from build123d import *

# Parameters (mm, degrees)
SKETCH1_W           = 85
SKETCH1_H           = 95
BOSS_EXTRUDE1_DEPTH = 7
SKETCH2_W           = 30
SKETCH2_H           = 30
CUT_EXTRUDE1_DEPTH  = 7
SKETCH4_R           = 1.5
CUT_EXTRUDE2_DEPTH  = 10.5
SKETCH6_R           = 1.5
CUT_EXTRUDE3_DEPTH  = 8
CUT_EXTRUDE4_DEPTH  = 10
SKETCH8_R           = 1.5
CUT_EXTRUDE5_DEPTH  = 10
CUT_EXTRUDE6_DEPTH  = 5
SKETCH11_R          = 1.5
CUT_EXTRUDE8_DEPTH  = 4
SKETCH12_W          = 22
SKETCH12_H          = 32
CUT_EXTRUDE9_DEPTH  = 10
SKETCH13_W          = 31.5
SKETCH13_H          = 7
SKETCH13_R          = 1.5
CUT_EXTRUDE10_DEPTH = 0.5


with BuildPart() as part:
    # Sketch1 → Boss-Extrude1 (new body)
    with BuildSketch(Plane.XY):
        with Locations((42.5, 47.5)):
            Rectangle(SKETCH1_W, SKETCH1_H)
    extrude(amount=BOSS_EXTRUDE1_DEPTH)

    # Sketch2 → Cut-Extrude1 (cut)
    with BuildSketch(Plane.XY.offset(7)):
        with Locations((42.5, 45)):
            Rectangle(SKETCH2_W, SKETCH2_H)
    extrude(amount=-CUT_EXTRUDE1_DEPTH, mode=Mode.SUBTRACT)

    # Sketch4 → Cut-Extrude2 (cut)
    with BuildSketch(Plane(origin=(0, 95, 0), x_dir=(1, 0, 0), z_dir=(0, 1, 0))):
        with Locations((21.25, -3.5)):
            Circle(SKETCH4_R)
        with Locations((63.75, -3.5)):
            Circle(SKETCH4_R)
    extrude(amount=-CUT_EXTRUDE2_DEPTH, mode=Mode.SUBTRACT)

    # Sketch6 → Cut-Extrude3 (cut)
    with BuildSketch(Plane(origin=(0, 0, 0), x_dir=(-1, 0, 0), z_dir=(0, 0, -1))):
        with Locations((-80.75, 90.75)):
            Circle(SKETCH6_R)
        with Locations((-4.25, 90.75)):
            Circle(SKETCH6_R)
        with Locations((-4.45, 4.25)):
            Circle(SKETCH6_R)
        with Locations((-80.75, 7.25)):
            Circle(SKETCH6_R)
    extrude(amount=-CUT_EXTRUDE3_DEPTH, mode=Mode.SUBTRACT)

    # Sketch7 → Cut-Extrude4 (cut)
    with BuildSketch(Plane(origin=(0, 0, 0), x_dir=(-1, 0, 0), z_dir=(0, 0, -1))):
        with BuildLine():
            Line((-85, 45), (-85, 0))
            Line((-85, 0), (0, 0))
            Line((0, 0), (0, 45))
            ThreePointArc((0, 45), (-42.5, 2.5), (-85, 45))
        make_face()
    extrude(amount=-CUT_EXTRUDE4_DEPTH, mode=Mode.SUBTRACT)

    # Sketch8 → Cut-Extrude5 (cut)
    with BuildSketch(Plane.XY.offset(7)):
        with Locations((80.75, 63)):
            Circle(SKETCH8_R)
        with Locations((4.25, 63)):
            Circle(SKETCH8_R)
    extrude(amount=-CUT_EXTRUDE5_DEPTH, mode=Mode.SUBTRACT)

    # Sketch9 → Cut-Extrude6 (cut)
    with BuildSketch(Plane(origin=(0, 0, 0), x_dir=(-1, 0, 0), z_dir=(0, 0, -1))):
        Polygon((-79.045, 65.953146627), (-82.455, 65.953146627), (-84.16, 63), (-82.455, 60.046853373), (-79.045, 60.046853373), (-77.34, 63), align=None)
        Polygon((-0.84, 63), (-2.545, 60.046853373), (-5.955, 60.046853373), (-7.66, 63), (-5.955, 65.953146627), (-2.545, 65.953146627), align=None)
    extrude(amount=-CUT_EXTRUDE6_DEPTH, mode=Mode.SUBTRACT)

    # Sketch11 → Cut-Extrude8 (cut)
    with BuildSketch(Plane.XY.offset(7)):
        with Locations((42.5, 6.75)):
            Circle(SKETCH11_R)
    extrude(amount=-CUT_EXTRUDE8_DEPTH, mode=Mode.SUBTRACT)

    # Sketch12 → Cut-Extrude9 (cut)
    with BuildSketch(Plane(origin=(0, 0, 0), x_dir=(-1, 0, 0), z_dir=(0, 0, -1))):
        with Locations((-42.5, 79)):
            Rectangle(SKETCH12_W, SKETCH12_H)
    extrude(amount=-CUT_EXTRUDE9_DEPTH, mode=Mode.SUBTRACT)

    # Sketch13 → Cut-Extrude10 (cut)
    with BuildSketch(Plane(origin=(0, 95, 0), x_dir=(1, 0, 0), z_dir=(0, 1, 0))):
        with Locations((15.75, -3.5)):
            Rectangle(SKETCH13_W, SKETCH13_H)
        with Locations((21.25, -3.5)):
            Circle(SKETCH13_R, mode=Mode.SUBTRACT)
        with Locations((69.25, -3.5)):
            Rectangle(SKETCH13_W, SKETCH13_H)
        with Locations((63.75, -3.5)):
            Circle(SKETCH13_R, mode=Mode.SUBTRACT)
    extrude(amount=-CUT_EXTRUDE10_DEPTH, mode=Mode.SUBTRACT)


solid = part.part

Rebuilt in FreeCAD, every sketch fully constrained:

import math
import FreeCAD as App
import Part
import Sketcher
Q = App.Units.Quantity

doc = App.newDocument("Part")
body = doc.addObject("PartDesign::Body", "Body")

# Sketch on XY plane
sketch1 = doc.addObject("Sketcher::SketchObject", "Sketch")
body.addObject(sketch1)
sketch1.AttachmentSupport = (doc.XY_Plane, [""])
sketch1.MapMode = "FlatFace"
sketch1.addGeometry(Part.LineSegment(App.Vector(0, 95, 0), App.Vector(0, 0, 0)), False)
sketch1.addGeometry(Part.LineSegment(App.Vector(0, 0, 0), App.Vector(85, 0, 0)), False)
sketch1.addGeometry(Part.LineSegment(App.Vector(85, 0, 0), App.Vector(85, 95, 0)), False)
sketch1.addGeometry(Part.LineSegment(App.Vector(85, 95, 0), App.Vector(0, 95, 0)), False)
sketch1.addConstraint(Sketcher.Constraint("Coincident", 0, 2, 1, 1))
sketch1.addConstraint(Sketcher.Constraint("Coincident", 1, 2, 2, 1))
sketch1.addConstraint(Sketcher.Constraint("Coincident", 2, 2, 3, 1))
sketch1.addConstraint(Sketcher.Constraint("Coincident", 3, 2, 0, 1))
sketch1.addConstraint(Sketcher.Constraint("Vertical", 0))
sketch1.addConstraint(Sketcher.Constraint("Horizontal", 1))
sketch1.addConstraint(Sketcher.Constraint("Vertical", 2))
sketch1.addConstraint(Sketcher.Constraint("Horizontal", 3))
sketch1.addConstraint(Sketcher.Constraint("Coincident", 0, 2, -1, 1))
sketch1.addConstraint(Sketcher.Constraint("DistanceX", 1, 1, 1, 2, Q("85 mm")))
sketch1.addConstraint(Sketcher.Constraint("DistanceY", 0, 2, 0, 1, Q("95 mm")))
pad1 = doc.addObject("PartDesign::Pad", "Pad")
body.addObject(pad1)
pad1.Profile = sketch1
pad1.Length = 7

# Sketch on XY plane
sketch2 = doc.addObject("Sketcher::SketchObject", "Sketch001")
body.addObject(sketch2)
sketch2.AttachmentSupport = (doc.XY_Plane, [""])
sketch2.MapMode = "FlatFace"
sketch2.AttachmentOffset = App.Placement(App.Vector(0, 0, 7), App.Rotation())
sketch2.addGeometry(Part.LineSegment(App.Vector(28, 60, 0), App.Vector(28, 30, 0)), False)
sketch2.addGeometry(Part.LineSegment(App.Vector(28, 30, 0), App.Vector(58, 30, 0)), False)
sketch2.addGeometry(Part.LineSegment(App.Vector(58, 30, 0), App.Vector(58, 60, 0)), False)
sketch2.addGeometry(Part.LineSegment(App.Vector(58, 60, 0), App.Vector(28, 60, 0)), False)
sketch2.addConstraint(Sketcher.Constraint("Coincident", 0, 2, 1, 1))
sketch2.addConstraint(Sketcher.Constraint("Coincident", 1, 2, 2, 1))
sketch2.addConstraint(Sketcher.Constraint("Coincident", 2, 2, 3, 1))
sketch2.addConstraint(Sketcher.Constraint("Coincident", 3, 2, 0, 1))
sketch2.addConstraint(Sketcher.Constraint("Vertical", 0))
sketch2.addConstraint(Sketcher.Constraint("Horizontal", 1))
sketch2.addConstraint(Sketcher.Constraint("Vertical", 2))
sketch2.addConstraint(Sketcher.Constraint("Horizontal", 3))
sketch2.addConstraint(Sketcher.Constraint("Equal", 3, 0))
sketch2.addConstraint(Sketcher.Constraint("DistanceX", 1, 1, 1, 2, Q("30 mm")))
sketch2.addConstraint(Sketcher.Constraint("DistanceY", -1, 1, 0, 2, Q("30 mm")))
sketch2.addConstraint(Sketcher.Constraint("DistanceX", -1, 1, 0, 2, Q("27.5 mm")))
pocket1 = doc.addObject("PartDesign::Pocket", "Pocket")
body.addObject(pocket1)
pocket1.Profile = sketch2
pocket1.Length = 7

# Sketch on XZ plane
sketch3 = doc.addObject("Sketcher::SketchObject", "Sketch002")
body.addObject(sketch3)
sketch3.AttachmentSupport = (doc.XZ_Plane, [""])
sketch3.MapMode = "FlatFace"
sketch3.AttachmentOffset = App.Placement(App.Vector(0, 0, -95), App.Rotation())
sketch3.addGeometry(Part.Circle(App.Vector(21.2, 3.5, 0), App.Vector(0, 0, 1), 1.5), False)
sketch3.addGeometry(Part.Circle(App.Vector(63.8, 3.5, 0), App.Vector(0, 0, 1), 1.5), False)
sketch3.addConstraint(Sketcher.Constraint("Equal", 0, 1))
sketch3.addConstraint(Sketcher.Constraint("Horizontal", 0, 3, 1, 3))
sketch3.addConstraint(Sketcher.Constraint("Diameter", 0, Q("3 mm")))
sketch3.addConstraint(Sketcher.Constraint("DistanceY", -1, 1, 0, 3, Q("3.5 mm")))
sketch3.addConstraint(Sketcher.Constraint("DistanceX", 0, 3, 1, 3, Q("42.5 mm")))
sketch3.addConstraint(Sketcher.Constraint("DistanceX", -1, 1, 0, 3, Q("21.25 mm")))
pocket2 = doc.addObject("PartDesign::Pocket", "Pocket001")
body.addObject(pocket2)
pocket2.Profile = sketch3
pocket2.Length = 10.5
pocket2.Reversed = True

# Sketch on XY plane
sketch4 = doc.addObject("Sketcher::SketchObject", "Sketch003")
body.addObject(sketch4)
sketch4.AttachmentSupport = (doc.XY_Plane, [""])
sketch4.MapMode = "FlatFace"
sketch4.addGeometry(Part.Circle(App.Vector(80.8, 90.8, 0), App.Vector(0, 0, 1), 1.5), False)
sketch4.addGeometry(Part.Circle(App.Vector(4.2, 90.8, 0), App.Vector(0, 0, 1), 1.5), False)
sketch4.addGeometry(Part.Circle(App.Vector(4.5, 4.2, 0), App.Vector(0, 0, 1), 1.5), False)
sketch4.addGeometry(Part.Circle(App.Vector(80.8, 7.2, 0), App.Vector(0, 0, 1), 1.5), False)
sketch4.addConstraint(Sketcher.Constraint("Equal", 0, 1))
sketch4.addConstraint(Sketcher.Constraint("Equal", 1, 2))
sketch4.addConstraint(Sketcher.Constraint("Equal", 2, 3))
sketch4.addConstraint(Sketcher.Constraint("Horizontal", 0, 3, 1, 3))
sketch4.addConstraint(Sketcher.Constraint("Vertical", 0, 3, 3, 3))
sketch4.addConstraint(Sketcher.Constraint("Diameter", 0, Q("3 mm")))
sketch4.addConstraint(Sketcher.Constraint("DistanceY", 2, 3, 3, 3, Q("3 mm")))
sketch4.addConstraint(Sketcher.Constraint("DistanceX", 1, 3, 0, 3, Q("76.5 mm")))
sketch4.addConstraint(Sketcher.Constraint("DistanceX", 1, 3, 2, 3, Q("0.2 mm")))
sketch4.addConstraint(Sketcher.Constraint("DistanceY", 2, 3, 1, 3, Q("86.5 mm")))
sketch4.addConstraint(Sketcher.Constraint("DistanceX", -1, 1, 0, 3, Q("80.75 mm")))
sketch4.addConstraint(Sketcher.Constraint("DistanceY", -1, 1, 0, 3, Q("90.75 mm")))
pocket3 = doc.addObject("PartDesign::Pocket", "Pocket002")
body.addObject(pocket3)
pocket3.Profile = sketch4
pocket3.Length = 8
pocket3.Reversed = True

# Sketch on XY plane
sketch5 = doc.addObject("Sketcher::SketchObject", "Sketch004")
body.addObject(sketch5)
sketch5.AttachmentSupport = (doc.XY_Plane, [""])
sketch5.MapMode = "FlatFace"
sketch5.addGeometry(Part.LineSegment(App.Vector(85, 45, 0), App.Vector(85, 0, 0)), False)
sketch5.addGeometry(Part.LineSegment(App.Vector(85, 0, 0), App.Vector(0, 0, 0)), False)
sketch5.addGeometry(Part.LineSegment(App.Vector(0, 0, 0), App.Vector(0, 45, 0)), False)
sketch5.addGeometry(Part.ArcOfCircle(Part.Circle(App.Vector(42, 45, 0), App.Vector(0, 0, 1), 42), math.radians(180), math.radians(360)), False)
sketch5.addConstraint(Sketcher.Constraint("Coincident", 0, 2, 1, 1))
sketch5.addConstraint(Sketcher.Constraint("Coincident", 1, 2, 2, 1))
sketch5.addConstraint(Sketcher.Constraint("Tangent", 2, 2, 3, 1))
sketch5.addConstraint(Sketcher.Constraint("Tangent", 3, 2, 0, 1))
sketch5.addConstraint(Sketcher.Constraint("Vertical", 0))
sketch5.addConstraint(Sketcher.Constraint("Horizontal", 1))
sketch5.addConstraint(Sketcher.Constraint("Vertical", 2))
sketch5.addConstraint(Sketcher.Constraint("Coincident", 1, 2, -1, 1))
sketch5.addConstraint(Sketcher.Constraint("Radius", 3, Q("42.5 mm")))
sketch5.addConstraint(Sketcher.Constraint("DistanceY", 0, 2, 0, 1, Q("45 mm")))
pocket4 = doc.addObject("PartDesign::Pocket", "Pocket003")
body.addObject(pocket4)
pocket4.Profile = sketch5
pocket4.Length = 10
pocket4.Reversed = True

# Sketch on XY plane
sketch6 = doc.addObject("Sketcher::SketchObject", "Sketch005")
body.addObject(sketch6)
sketch6.AttachmentSupport = (doc.XY_Plane, [""])
sketch6.MapMode = "FlatFace"
sketch6.AttachmentOffset = App.Placement(App.Vector(0, 0, 7), App.Rotation())
sketch6.addGeometry(Part.Circle(App.Vector(80.8, 63, 0), App.Vector(0, 0, 1), 1.5), False)
sketch6.addGeometry(Part.Circle(App.Vector(4.2, 63, 0), App.Vector(0, 0, 1), 1.5), False)
sketch6.addConstraint(Sketcher.Constraint("Equal", 0, 1))
sketch6.addConstraint(Sketcher.Constraint("Horizontal", 0, 3, 1, 3))
sketch6.addConstraint(Sketcher.Constraint("Diameter", 0, Q("3 mm")))
sketch6.addConstraint(Sketcher.Constraint("DistanceY", -1, 1, 0, 3, Q("63 mm")))
sketch6.addConstraint(Sketcher.Constraint("DistanceX", 1, 3, 0, 3, Q("76.5 mm")))
sketch6.addConstraint(Sketcher.Constraint("DistanceX", -1, 1, 0, 3, Q("80.75 mm")))
pocket5 = doc.addObject("PartDesign::Pocket", "Pocket004")
body.addObject(pocket5)
pocket5.Profile = sketch6
pocket5.Length = 10

# Sketch on XY plane
sketch7 = doc.addObject("Sketcher::SketchObject", "Sketch006")
body.addObject(sketch7)
sketch7.AttachmentSupport = (doc.XY_Plane, [""])
sketch7.MapMode = "FlatFace"
sketch7.addGeometry(Part.LineSegment(App.Vector(79, 66, 0), App.Vector(82.5, 66, 0)), False)
sketch7.addGeometry(Part.LineSegment(App.Vector(82.5, 66, 0), App.Vector(84.2, 63, 0)), False)
sketch7.addGeometry(Part.LineSegment(App.Vector(84.2, 63, 0), App.Vector(82.5, 60, 0)), False)
sketch7.addGeometry(Part.LineSegment(App.Vector(82.5, 60, 0), App.Vector(79, 60, 0)), False)
sketch7.addGeometry(Part.LineSegment(App.Vector(79, 60, 0), App.Vector(77.3, 63, 0)), False)
sketch7.addGeometry(Part.LineSegment(App.Vector(77.3, 63, 0), App.Vector(79, 66, 0)), False)
sketch7.addGeometry(Part.LineSegment(App.Vector(2.5, 60, 0), App.Vector(0.8, 63, 0)), False)
sketch7.addGeometry(Part.LineSegment(App.Vector(0.8, 63, 0), App.Vector(2.5, 66, 0)), False)
sketch7.addGeometry(Part.LineSegment(App.Vector(2.5, 66, 0), App.Vector(6, 66, 0)), False)
sketch7.addGeometry(Part.LineSegment(App.Vector(6, 66, 0), App.Vector(7.7, 63, 0)), False)
sketch7.addGeometry(Part.LineSegment(App.Vector(7.7, 63, 0), App.Vector(6, 60, 0)), False)
sketch7.addGeometry(Part.LineSegment(App.Vector(6, 60, 0), App.Vector(2.5, 60, 0)), False)
sketch7.addConstraint(Sketcher.Constraint("Coincident", 0, 2, 1, 1))
sketch7.addConstraint(Sketcher.Constraint("Coincident", 1, 2, 2, 1))
sketch7.addConstraint(Sketcher.Constraint("Coincident", 2, 2, 3, 1))
sketch7.addConstraint(Sketcher.Constraint("Coincident", 3, 2, 4, 1))
sketch7.addConstraint(Sketcher.Constraint("Coincident", 4, 2, 5, 1))
sketch7.addConstraint(Sketcher.Constraint("Coincident", 5, 2, 0, 1))
sketch7.addConstraint(Sketcher.Constraint("Coincident", 6, 2, 7, 1))
sketch7.addConstraint(Sketcher.Constraint("Coincident", 7, 2, 8, 1))
sketch7.addConstraint(Sketcher.Constraint("Coincident", 8, 2, 9, 1))
sketch7.addConstraint(Sketcher.Constraint("Coincident", 9, 2, 10, 1))
sketch7.addConstraint(Sketcher.Constraint("Coincident", 10, 2, 11, 1))
sketch7.addConstraint(Sketcher.Constraint("Coincident", 11, 2, 6, 1))
sketch7.addConstraint(Sketcher.Constraint("Horizontal", 0))
sketch7.addConstraint(Sketcher.Constraint("Horizontal", 3))
sketch7.addConstraint(Sketcher.Constraint("Horizontal", 8))
sketch7.addConstraint(Sketcher.Constraint("Horizontal", 11))
sketch7.addConstraint(Sketcher.Constraint("Parallel", 1, 4))
sketch7.addConstraint(Sketcher.Constraint("Parallel", 2, 5))
sketch7.addConstraint(Sketcher.Constraint("Parallel", 4, 6))
sketch7.addConstraint(Sketcher.Constraint("Parallel", 5, 7))
sketch7.addConstraint(Sketcher.Constraint("Parallel", 6, 9))
sketch7.addConstraint(Sketcher.Constraint("Parallel", 7, 10))
sketch7.addConstraint(Sketcher.Constraint("Horizontal", 1, 2, 4, 2))
sketch7.addConstraint(Sketcher.Constraint("Horizontal", 4, 2, 6, 2))
sketch7.addConstraint(Sketcher.Constraint("Horizontal", 5, 2, 7, 2))
sketch7.addConstraint(Sketcher.Constraint("Horizontal", 6, 2, 9, 2))
sketch7.addConstraint(Sketcher.Constraint("Horizontal", 3, 2, 10, 2))
sketch7.addConstraint(Sketcher.Constraint("Vertical", 0, 2, 2, 2))
sketch7.addConstraint(Sketcher.Constraint("Vertical", 3, 2, 5, 2))
sketch7.addConstraint(Sketcher.Constraint("Equal", 3, 8))
sketch7.addConstraint(Sketcher.Constraint("Angle", 1, Q("-60 deg")))
sketch7.addConstraint(Sketcher.Constraint("DistanceY", -1, 1, 1, 2, Q("63 mm")))
sketch7.addConstraint(Sketcher.Constraint("DistanceX", 0, 1, 0, 2, Q("3.41 mm")))
sketch7.addConstraint(Sketcher.Constraint("DistanceX", 6, 2, 4, 2, Q("76.5 mm")))
sketch7.addConstraint(Sketcher.Constraint("Distance", 1, Q("3.41 mm")))
sketch7.addConstraint(Sketcher.Constraint("DistanceX", -1, 1, 1, 2, Q("84.16 mm")))
pocket6 = doc.addObject("PartDesign::Pocket", "Pocket005")
body.addObject(pocket6)
pocket6.Profile = sketch7
pocket6.Length = 5
pocket6.Reversed = True

# Sketch on XY plane
sketch8 = doc.addObject("Sketcher::SketchObject", "Sketch007")
body.addObject(sketch8)
sketch8.AttachmentSupport = (doc.XY_Plane, [""])
sketch8.MapMode = "FlatFace"
sketch8.AttachmentOffset = App.Placement(App.Vector(0, 0, 7), App.Rotation())
sketch8.addGeometry(Part.Circle(App.Vector(42.5, 6.8, 0), App.Vector(0, 0, 1), 1.5), False)
sketch8.addConstraint(Sketcher.Constraint("Diameter", 0, Q("3 mm")))
sketch8.addConstraint(Sketcher.Constraint("DistanceX", -1, 1, 0, 3, Q("42.5 mm")))
sketch8.addConstraint(Sketcher.Constraint("DistanceY", -1, 1, 0, 3, Q("6.75 mm")))
pocket7 = doc.addObject("PartDesign::Pocket", "Pocket006")
body.addObject(pocket7)
pocket7.Profile = sketch8
pocket7.Length = 4

# Sketch on XY plane
sketch9 = doc.addObject("Sketcher::SketchObject", "Sketch008")
body.addObject(sketch9)
sketch9.AttachmentSupport = (doc.XY_Plane, [""])
sketch9.MapMode = "FlatFace"
sketch9.addGeometry(Part.LineSegment(App.Vector(54, 95, 0), App.Vector(54, 63, 0)), False)
sketch9.addGeometry(Part.LineSegment(App.Vector(54, 63, 0), App.Vector(32, 63, 0)), False)
sketch9.addGeometry(Part.LineSegment(App.Vector(32, 63, 0), App.Vector(32, 95, 0)), False)
sketch9.addGeometry(Part.LineSegment(App.Vector(32, 95, 0), App.Vector(54, 95, 0)), False)
sketch9.addConstraint(Sketcher.Constraint("Coincident", 0, 2, 1, 1))
sketch9.addConstraint(Sketcher.Constraint("Coincident", 1, 2, 2, 1))
sketch9.addConstraint(Sketcher.Constraint("Coincident", 2, 2, 3, 1))
sketch9.addConstraint(Sketcher.Constraint("Coincident", 3, 2, 0, 1))
sketch9.addConstraint(Sketcher.Constraint("Vertical", 0))
sketch9.addConstraint(Sketcher.Constraint("Horizontal", 1))
sketch9.addConstraint(Sketcher.Constraint("Vertical", 2))
sketch9.addConstraint(Sketcher.Constraint("Horizontal", 3))
sketch9.addConstraint(Sketcher.Constraint("DistanceX", 1, 2, 1, 1, Q("22 mm")))
sketch9.addConstraint(Sketcher.Constraint("DistanceY", 0, 2, 0, 1, Q("32 mm")))
sketch9.addConstraint(Sketcher.Constraint("DistanceY", -1, 1, 0, 2, Q("63 mm")))
sketch9.addConstraint(Sketcher.Constraint("DistanceX", -1, 1, 0, 2, Q("53.5 mm")))
pocket8 = doc.addObject("PartDesign::Pocket", "Pocket007")
body.addObject(pocket8)
pocket8.Profile = sketch9
pocket8.Length = 10
pocket8.Reversed = True

# Sketch on XZ plane
sketch10 = doc.addObject("Sketcher::SketchObject", "Sketch009")
body.addObject(sketch10)
sketch10.AttachmentSupport = (doc.XZ_Plane, [""])
sketch10.MapMode = "FlatFace"
sketch10.AttachmentOffset = App.Placement(App.Vector(0, 0, -95), App.Rotation())
sketch10.addGeometry(Part.LineSegment(App.Vector(0, 0, 0), App.Vector(0, 7, 0)), False)
sketch10.addGeometry(Part.LineSegment(App.Vector(0, 7, 0), App.Vector(31.5, 7, 0)), False)
sketch10.addGeometry(Part.LineSegment(App.Vector(31.5, 7, 0), App.Vector(31.5, 0, 0)), False)
sketch10.addGeometry(Part.LineSegment(App.Vector(31.5, 0, 0), App.Vector(0, 0, 0)), False)
sketch10.addGeometry(Part.Circle(App.Vector(21.2, 3.5, 0), App.Vector(0, 0, 1), 1.5), False)
sketch10.addGeometry(Part.LineSegment(App.Vector(53.5, 0, 0), App.Vector(53.5, 7, 0)), False)
sketch10.addGeometry(Part.LineSegment(App.Vector(53.5, 7, 0), App.Vector(85, 7, 0)), False)
sketch10.addGeometry(Part.LineSegment(App.Vector(85, 7, 0), App.Vector(85, 0, 0)), False)
sketch10.addGeometry(Part.LineSegment(App.Vector(85, 0, 0), App.Vector(53.5, 0, 0)), False)
sketch10.addGeometry(Part.Circle(App.Vector(63.8, 3.5, 0), App.Vector(0, 0, 1), 1.5), False)
sketch10.addConstraint(Sketcher.Constraint("Coincident", 0, 2, 1, 1))
sketch10.addConstraint(Sketcher.Constraint("Coincident", 1, 2, 2, 1))
sketch10.addConstraint(Sketcher.Constraint("Coincident", 2, 2, 3, 1))
sketch10.addConstraint(Sketcher.Constraint("Coincident", 3, 2, 0, 1))
sketch10.addConstraint(Sketcher.Constraint("Coincident", 5, 2, 6, 1))
sketch10.addConstraint(Sketcher.Constraint("Coincident", 6, 2, 7, 1))
sketch10.addConstraint(Sketcher.Constraint("Coincident", 7, 2, 8, 1))
sketch10.addConstraint(Sketcher.Constraint("Coincident", 8, 2, 5, 1))
sketch10.addConstraint(Sketcher.Constraint("Vertical", 0))
sketch10.addConstraint(Sketcher.Constraint("Horizontal", 1))
sketch10.addConstraint(Sketcher.Constraint("Vertical", 2))
sketch10.addConstraint(Sketcher.Constraint("Horizontal", 3))
sketch10.addConstraint(Sketcher.Constraint("Vertical", 5))
sketch10.addConstraint(Sketcher.Constraint("Horizontal", 6))
sketch10.addConstraint(Sketcher.Constraint("Vertical", 7))
sketch10.addConstraint(Sketcher.Constraint("Horizontal", 8))
sketch10.addConstraint(Sketcher.Constraint("Coincident", 3, 2, -1, 1))
sketch10.addConstraint(Sketcher.Constraint("Equal", 4, 9))
sketch10.addConstraint(Sketcher.Constraint("PointOnObject", 7, 2, -1))
sketch10.addConstraint(Sketcher.Constraint("Horizontal", 4, 3, 9, 3))
sketch10.addConstraint(Sketcher.Constraint("Horizontal", 1, 2, 5, 2))
sketch10.addConstraint(Sketcher.Constraint("Equal", 3, 6))
sketch10.addConstraint(Sketcher.Constraint("Diameter", 4, Q("3 mm")))
sketch10.addConstraint(Sketcher.Constraint("DistanceY", 0, 1, 0, 2, Q("7 mm")))
sketch10.addConstraint(Sketcher.Constraint("DistanceX", 1, 1, 1, 2, Q("31.5 mm")))
sketch10.addConstraint(Sketcher.Constraint("DistanceX", -1, 1, 6, 2, Q("85 mm")))
sketch10.addConstraint(Sketcher.Constraint("DistanceY", -1, 1, 4, 3, Q("3.5 mm")))
sketch10.addConstraint(Sketcher.Constraint("DistanceX", 4, 3, 9, 3, Q("42.5 mm")))
sketch10.addConstraint(Sketcher.Constraint("DistanceX", -1, 1, 4, 3, Q("21.25 mm")))
pocket9 = doc.addObject("PartDesign::Pocket", "Pocket008")
body.addObject(pocket9)
pocket9.Profile = sketch10
pocket9.Length = 0.5
pocket9.Reversed = True

doc.recompute()
